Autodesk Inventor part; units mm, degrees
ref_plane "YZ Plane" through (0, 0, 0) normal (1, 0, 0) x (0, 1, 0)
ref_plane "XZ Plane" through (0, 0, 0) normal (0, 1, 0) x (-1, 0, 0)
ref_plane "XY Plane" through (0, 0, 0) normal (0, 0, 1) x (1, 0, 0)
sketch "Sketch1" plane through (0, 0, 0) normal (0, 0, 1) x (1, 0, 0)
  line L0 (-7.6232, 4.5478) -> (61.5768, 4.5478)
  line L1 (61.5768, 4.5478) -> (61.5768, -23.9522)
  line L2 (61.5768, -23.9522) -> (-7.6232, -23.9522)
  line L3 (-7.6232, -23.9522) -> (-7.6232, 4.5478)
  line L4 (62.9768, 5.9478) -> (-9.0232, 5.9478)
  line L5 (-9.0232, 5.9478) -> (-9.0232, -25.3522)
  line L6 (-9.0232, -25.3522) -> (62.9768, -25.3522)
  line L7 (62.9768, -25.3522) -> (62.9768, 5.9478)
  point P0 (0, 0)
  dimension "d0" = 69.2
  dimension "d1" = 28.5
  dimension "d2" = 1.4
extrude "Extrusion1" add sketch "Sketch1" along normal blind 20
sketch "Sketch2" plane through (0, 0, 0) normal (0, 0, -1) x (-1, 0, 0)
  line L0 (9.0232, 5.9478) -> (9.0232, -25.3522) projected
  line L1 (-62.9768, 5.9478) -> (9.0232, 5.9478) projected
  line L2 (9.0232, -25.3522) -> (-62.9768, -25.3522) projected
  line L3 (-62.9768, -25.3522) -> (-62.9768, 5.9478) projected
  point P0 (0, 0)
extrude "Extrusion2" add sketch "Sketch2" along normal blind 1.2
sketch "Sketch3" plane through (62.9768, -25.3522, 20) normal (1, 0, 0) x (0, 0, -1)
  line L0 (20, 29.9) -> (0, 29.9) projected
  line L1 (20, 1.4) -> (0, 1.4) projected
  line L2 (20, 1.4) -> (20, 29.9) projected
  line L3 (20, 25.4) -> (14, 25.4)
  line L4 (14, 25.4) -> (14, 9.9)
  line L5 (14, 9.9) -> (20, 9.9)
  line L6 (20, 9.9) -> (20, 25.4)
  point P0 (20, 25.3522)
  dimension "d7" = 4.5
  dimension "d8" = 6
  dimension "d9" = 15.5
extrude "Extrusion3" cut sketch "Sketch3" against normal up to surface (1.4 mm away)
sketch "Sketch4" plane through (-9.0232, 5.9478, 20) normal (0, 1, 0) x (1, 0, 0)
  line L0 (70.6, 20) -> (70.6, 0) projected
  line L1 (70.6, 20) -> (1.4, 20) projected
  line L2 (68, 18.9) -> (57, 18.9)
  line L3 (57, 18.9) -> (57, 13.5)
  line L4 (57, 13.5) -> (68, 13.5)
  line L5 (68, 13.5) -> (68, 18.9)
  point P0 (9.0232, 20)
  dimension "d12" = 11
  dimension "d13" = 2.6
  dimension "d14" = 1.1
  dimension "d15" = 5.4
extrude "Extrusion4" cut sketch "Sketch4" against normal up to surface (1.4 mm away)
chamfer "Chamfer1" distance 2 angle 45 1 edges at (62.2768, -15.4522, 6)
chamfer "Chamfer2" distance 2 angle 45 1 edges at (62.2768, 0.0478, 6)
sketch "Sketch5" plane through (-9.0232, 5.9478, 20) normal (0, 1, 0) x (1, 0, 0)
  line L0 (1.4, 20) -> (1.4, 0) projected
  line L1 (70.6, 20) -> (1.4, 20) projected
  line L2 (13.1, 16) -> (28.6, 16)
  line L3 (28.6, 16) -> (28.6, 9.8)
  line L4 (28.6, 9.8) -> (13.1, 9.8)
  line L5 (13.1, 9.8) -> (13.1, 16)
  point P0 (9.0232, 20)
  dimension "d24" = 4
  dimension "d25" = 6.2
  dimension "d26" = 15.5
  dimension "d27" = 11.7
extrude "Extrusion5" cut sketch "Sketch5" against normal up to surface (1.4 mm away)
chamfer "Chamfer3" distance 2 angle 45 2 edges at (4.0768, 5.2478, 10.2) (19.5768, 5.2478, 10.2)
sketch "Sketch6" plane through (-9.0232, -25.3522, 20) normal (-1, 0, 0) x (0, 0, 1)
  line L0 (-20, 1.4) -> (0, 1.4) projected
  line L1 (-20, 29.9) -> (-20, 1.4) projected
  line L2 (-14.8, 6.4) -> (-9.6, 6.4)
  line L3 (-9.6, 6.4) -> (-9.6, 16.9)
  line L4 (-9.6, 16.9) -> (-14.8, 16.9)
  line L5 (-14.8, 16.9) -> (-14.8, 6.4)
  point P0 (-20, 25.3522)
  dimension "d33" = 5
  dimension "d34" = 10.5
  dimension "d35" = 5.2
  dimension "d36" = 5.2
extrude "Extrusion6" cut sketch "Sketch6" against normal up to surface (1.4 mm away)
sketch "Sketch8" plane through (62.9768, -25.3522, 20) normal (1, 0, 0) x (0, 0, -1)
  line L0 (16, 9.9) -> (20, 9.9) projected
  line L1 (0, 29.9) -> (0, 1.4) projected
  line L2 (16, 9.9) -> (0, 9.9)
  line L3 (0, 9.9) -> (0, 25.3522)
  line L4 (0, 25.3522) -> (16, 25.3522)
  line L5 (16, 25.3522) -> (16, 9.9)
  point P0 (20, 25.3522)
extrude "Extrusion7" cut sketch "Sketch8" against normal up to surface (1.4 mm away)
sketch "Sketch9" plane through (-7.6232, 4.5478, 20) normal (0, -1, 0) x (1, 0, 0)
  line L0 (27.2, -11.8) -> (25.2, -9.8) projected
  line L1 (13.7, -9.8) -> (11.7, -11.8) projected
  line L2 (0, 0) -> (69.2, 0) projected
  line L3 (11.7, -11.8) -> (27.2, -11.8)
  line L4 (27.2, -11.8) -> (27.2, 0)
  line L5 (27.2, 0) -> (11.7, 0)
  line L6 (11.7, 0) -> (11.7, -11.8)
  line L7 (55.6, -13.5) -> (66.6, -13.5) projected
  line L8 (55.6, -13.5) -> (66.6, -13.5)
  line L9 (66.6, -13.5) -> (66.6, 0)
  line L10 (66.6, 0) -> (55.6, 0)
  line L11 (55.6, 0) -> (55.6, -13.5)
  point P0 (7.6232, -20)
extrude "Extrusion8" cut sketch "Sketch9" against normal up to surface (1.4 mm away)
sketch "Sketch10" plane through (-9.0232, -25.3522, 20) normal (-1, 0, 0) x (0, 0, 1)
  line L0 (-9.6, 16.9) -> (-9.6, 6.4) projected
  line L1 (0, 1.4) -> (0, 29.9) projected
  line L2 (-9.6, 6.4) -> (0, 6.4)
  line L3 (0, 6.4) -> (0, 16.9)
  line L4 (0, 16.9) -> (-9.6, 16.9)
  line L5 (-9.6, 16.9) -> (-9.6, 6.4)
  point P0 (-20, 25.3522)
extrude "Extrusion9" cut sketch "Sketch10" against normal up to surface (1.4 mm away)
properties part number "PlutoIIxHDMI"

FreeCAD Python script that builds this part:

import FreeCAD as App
import Part
import Sketcher
from FreeCAD import Vector


def edges_at(feature, points):
    """Names of the edges that pass closest to the given points."""
    edges = feature.Shape.Edges
    near = lambda p: min(range(len(edges)), key=lambda i: edges[i].distToShape(Part.Vertex(*p))[0])
    return sorted({f"Edge{near(p) + 1}" for p in points})


def add_polygon(sketch, points):
    """Adds a closed chain of lines whose ends are joined by coincident constraints."""
    first, n = sketch.GeometryCount, len(points)
    for a, b in zip(points, points[1:] + points[:1]):
        sketch.addGeometry(Part.LineSegment(App.Vector(*a, 0), App.Vector(*b, 0)), False)
    for i in range(n):
        sketch.addConstraint(Sketcher.Constraint("Coincident", first + i, 2, first + (i + 1) % n, 1))

doc = App.newDocument("Part")
body = doc.addObject("PartDesign::Body", "Body")

# Sketch on XY plane
sketch1 = doc.addObject("Sketcher::SketchObject", "Sketch")
body.addObject(sketch1)
sketch1.AttachmentSupport = (doc.XY_Plane, [""])
sketch1.MapMode = "FlatFace"
add_polygon(sketch1, [(62.9768, -25.3522), (62.9768, 5.9478), (-9.0232, 5.9478), (-9.0232, -25.3522)])  # lines 0-3
add_polygon(sketch1, [(-7.6232, -23.9522), (-7.6232, 4.5478), (61.5768, 4.5478), (61.5768, -23.9522)])  # lines 4-7
sketch1.addConstraint([
    Sketcher.Constraint("Vertical", 0),
    Sketcher.Constraint("Horizontal", 1),
    Sketcher.Constraint("Vertical", 2),
    Sketcher.Constraint("Horizontal", 3),
    Sketcher.Constraint("Vertical", 4),
    Sketcher.Constraint("Horizontal", 5),
    Sketcher.Constraint("Vertical", 6),
    Sketcher.Constraint("Horizontal", 7),
    Sketcher.Constraint("DistanceX", 5, 1, 5, 2, 69.2),
    Sketcher.Constraint("DistanceY", 4, 1, 4, 2, 28.5),
    Sketcher.Constraint("DistanceX", 1, 2, 4, 2, 1.4),
    Sketcher.Constraint("DistanceY", 4, 2, 1, 2, 1.4),
    Sketcher.Constraint("DistanceX", 5, 2, 0, 2, 1.4),
    Sketcher.Constraint("DistanceY", 3, 2, 6, 2, 1.4),
    Sketcher.Constraint("DistanceX", -1, 1, 0, 2, 62.9768),
    Sketcher.Constraint("DistanceY", -1, 1, 0, 2, 5.9478),
])
pad1 = doc.addObject("PartDesign::Pad", "Pad")
body.addObject(pad1)
pad1.Profile = sketch1
pad1.Length = 20

# Sketch on XY plane
sketch2 = doc.addObject("Sketcher::SketchObject", "Sketch001")
body.addObject(sketch2)
sketch2.AttachmentSupport = (doc.XY_Plane, [""])
sketch2.MapMode = "FlatFace"
add_polygon(sketch2, [(-9.0232, -25.3522), (-9.0232, 5.9478), (62.9768, 5.9478), (62.9768, -25.3522)])  # lines 0-3
sketch2.addConstraint([
    Sketcher.Constraint("Vertical", 0),
    Sketcher.Constraint("Horizontal", 1),
    Sketcher.Constraint("Vertical", 2),
    Sketcher.Constraint("Horizontal", 3),
    Sketcher.Constraint("DistanceX", 1, 1, 1, 2, 72.0),
    Sketcher.Constraint("DistanceY", 0, 1, 0, 2, 31.3),
    Sketcher.Constraint("DistanceX", 0, 2, -1, 1, 9.0232),
    Sketcher.Constraint("DistanceY", -1, 1, 0, 2, 5.9478),
])
pad2 = doc.addObject("PartDesign::Pad", "Pad001")
body.addObject(pad2)
pad2.Profile = sketch2
pad2.Length = 1.2
pad2.Reversed = True

# Sketch on YZ plane
sketch3 = doc.addObject("Sketcher::SketchObject", "Sketch002")
body.addObject(sketch3)
sketch3.AttachmentSupport = (doc.YZ_Plane, [""])
sketch3.MapMode = "FlatFace"
sketch3.AttachmentOffset = App.Placement(Vector(0, 0, 62.9768), App.Rotation())
add_polygon(sketch3, [(-15.4522, 6), (-15.4522, 0), (0.0478, 0), (0.0478, 6)])  # lines 0-3
sketch3.addConstraint([
    Sketcher.Constraint("Vertical", 0),
    Sketcher.Constraint("Horizontal", 1),
    Sketcher.Constraint("Vertical", 2),
    Sketcher.Constraint("Horizontal", 3),
    Sketcher.Constraint("PointOnObject", 0, 2, -1),
    Sketcher.Constraint("DistanceY", 0, 2, 0, 1, 6.0),
    Sketcher.Constraint("DistanceX", 1, 1, 1, 2, 15.5),
    Sketcher.Constraint("DistanceX", 0, 2, -1, 1, 15.4522),
])
pocket1 = doc.addObject("PartDesign::Pocket", "Pocket")
body.addObject(pocket1)
pocket1.Profile = sketch3
pocket1.Length = 1.4

# Sketch on XZ plane
sketch4 = doc.addObject("Sketcher::SketchObject", "Sketch003")
body.addObject(sketch4)
sketch4.AttachmentSupport = (doc.XZ_Plane, [""])
sketch4.MapMode = "FlatFace"
sketch4.AttachmentOffset = App.Placement(Vector(0, 0, -5.9478), App.Rotation())
add_polygon(sketch4, [(58.9768, 6.5), (58.9768, 1.1), (47.9768, 1.1), (47.9768, 6.5)])  # lines 0-3
sketch4.addConstraint([
    Sketcher.Constraint("Vertical", 0),
    Sketcher.Constraint("Horizontal", 1),
    Sketcher.Constraint("Vertical", 2),
    Sketcher.Constraint("Horizontal", 3),
    Sketcher.Constraint("DistanceX", 1, 2, 1, 1, 11.0),
    Sketcher.Constraint("DistanceY", 0, 2, 0, 1, 5.4),
    Sketcher.Constraint("DistanceY", -1, 1, 0, 2, 1.1),
    Sketcher.Constraint("DistanceX", -1, 1, 0, 2, 58.9768),
])
pocket2 = doc.addObject("PartDesign::Pocket", "Pocket001")
body.addObject(pocket2)
pocket2.Profile = sketch4
pocket2.Length = 1.4
pocket2.Reversed = True
doc.recompute()

chamfer = doc.addObject("PartDesign::Chamfer", "Chamfer")
body.addObject(chamfer)
chamfer.Base = (pocket2, edges_at(pocket2, [(62.277, -15.452, 6)]))
chamfer.Size = 2
doc.recompute()

chamfer2 = doc.addObject("PartDesign::Chamfer", "Chamfer001")
body.addObject(chamfer2)
chamfer2.Base = (chamfer, edges_at(chamfer, [(62.277, 0.048, 6)]))
chamfer2.Size = 2

# Sketch on XZ plane
sketch5 = doc.addObject("Sketcher::SketchObject", "Sketch004")
body.addObject(sketch5)
sketch5.AttachmentSupport = (doc.XZ_Plane, [""])
sketch5.MapMode = "FlatFace"
sketch5.AttachmentOffset = App.Placement(Vector(0, 0, -5.9478), App.Rotation())
add_polygon(sketch5, [(19.5768, 4), (4.0768, 4), (4.0768, 10.2), (19.5768, 10.2)])  # lines 0-3
sketch5.addConstraint([
    Sketcher.Constraint("Horizontal", 0),
    Sketcher.Constraint("Vertical", 1),
    Sketcher.Constraint("Horizontal", 2),
    Sketcher.Constraint("Vertical", 3),
    Sketcher.Constraint("DistanceX", 0, 2, 0, 1, 15.5),
    Sketcher.Constraint("DistanceY", 1, 1, 1, 2, 6.2),
    Sketcher.Constraint("DistanceY", -1, 1, 0, 2, 4.0),
    Sketcher.Constraint("DistanceX", -1, 1, 0, 2, 4.0768),
])
pocket3 = doc.addObject("PartDesign::Pocket", "Pocket002")
body.addObject(pocket3)
pocket3.Profile = sketch5
pocket3.Length = 1.4
pocket3.Reversed = True
doc.recompute()

chamfer3 = doc.addObject("PartDesign::Chamfer", "Chamfer002")
body.addObject(chamfer3)
chamfer3.Base = (pocket3, edges_at(pocket3, [(4.077, 5.248, 10.2), (19.577, 5.248, 10.2)]))
chamfer3.Size = 2

# Sketch on YZ plane
sketch6 = doc.addObject("Sketcher::SketchObject", "Sketch005")
body.addObject(sketch6)
sketch6.AttachmentSupport = (doc.YZ_Plane, [""])
sketch6.MapMode = "FlatFace"
sketch6.AttachmentOffset = App.Placement(Vector(0, 0, -9.0232), App.Rotation())
add_polygon(sketch6, [(-8.4522, 5.2), (-18.9522, 5.2), (-18.9522, 10.4), (-8.4522, 10.4)])  # lines 0-3
sketch6.addConstraint([
    Sketcher.Constraint("Horizontal", 0),
    Sketcher.Constraint("Vertical", 1),
    Sketcher.Constraint("Horizontal", 2),
    Sketcher.Constraint("Vertical", 3),
    Sketcher.Constraint("DistanceX", 0, 2, 0, 1, 10.5),
    Sketcher.Constraint("DistanceY", 1, 1, 1, 2, 5.2),
    Sketcher.Constraint("DistanceY", -1, 1, 0, 2, 5.2),
    Sketcher.Constraint("DistanceX", 0, 2, -1, 1, 18.9522),
])
pocket4 = doc.addObject("PartDesign::Pocket", "Pocket003")
body.addObject(pocket4)
pocket4.Profile = sketch6
pocket4.Length = 1.4
pocket4.Reversed = True

# Sketch on YZ plane
sketch7 = doc.addObject("Sketcher::SketchObject", "Sketch006")
body.addObject(sketch7)
sketch7.AttachmentSupport = (doc.YZ_Plane, [""])
sketch7.MapMode = "FlatFace"
sketch7.AttachmentOffset = App.Placement(Vector(0, 0, 62.9768), App.Rotation())
add_polygon(sketch7, [(0, 4), (0, 20), (-15.4522, 20), (-15.4522, 4)])  # lines 0-3
sketch7.addConstraint([
    Sketcher.Constraint("Vertical", 0),
    Sketcher.Constraint("Horizontal", 1),
    Sketcher.Constraint("Vertical", 2),
    Sketcher.Constraint("Horizontal", 3),
    Sketcher.Constraint("PointOnObject", 0, 2, -2),
    Sketcher.Constraint("DistanceY", 0, 1, 0, 2, 16.0),
    Sketcher.Constraint("DistanceY", -1, 1, 0, 2, 20.0),
    Sketcher.Constraint("DistanceX", 1, 2, 1, 1, 15.4522),
])
pocket5 = doc.addObject("PartDesign::Pocket", "Pocket004")
body.addObject(pocket5)
pocket5.Profile = sketch7
pocket5.Length = 1.4

# Sketch on XZ plane
sketch8 = doc.addObject("Sketcher::SketchObject", "Sketch007")
body.addObject(sketch8)
sketch8.AttachmentSupport = (doc.XZ_Plane, [""])
sketch8.MapMode = "FlatFace"
sketch8.AttachmentOffset = App.Placement(Vector(0, 0, -4.5478), App.Rotation())
add_polygon(sketch8, [(58.9768, 20), (47.9768, 20), (47.9768, 6.5), (58.9768, 6.5)])  # lines 0-3
add_polygon(sketch8, [(19.5768, 20), (4.0768, 20), (4.0768, 8.2), (19.5768, 8.2)])  # lines 4-7
sketch8.addConstraint([
    Sketcher.Constraint("Horizontal", 0),
    Sketcher.Constraint("Vertical", 1),
    Sketcher.Constraint("Horizontal", 2),
    Sketcher.Constraint("Vertical", 3),
    Sketcher.Constraint("Horizontal", 4),
    Sketcher.Constraint("Vertical", 5),
    Sketcher.Constraint("Horizontal", 6),
    Sketcher.Constraint("Vertical", 7),
    Sketcher.Constraint("Horizontal", 3, 2, 4, 2),
    Sketcher.Constraint("DistanceX", 0, 2, 0, 1, 11.0),
    Sketcher.Constraint("DistanceX", 4, 2, 4, 1, 15.5),
    Sketcher.Constraint("DistanceY", 1, 2, 1, 1, 13.5),
    Sketcher.Constraint("DistanceY", 5, 2, 5, 1, 11.8),
    Sketcher.Constraint("DistanceY", -1, 1, 0, 2, 20.0),
    Sketcher.Constraint("DistanceX", 4, 2, 0, 2, 43.9),
    Sketcher.Constraint("DistanceX", -1, 1, 0, 2, 47.9768),
])
pocket6 = doc.addObject("PartDesign::Pocket", "Pocket005")
body.addObject(pocket6)
pocket6.Profile = sketch8
pocket6.Length = 1.4

# Sketch on YZ plane
sketch9 = doc.addObject("Sketcher::SketchObject", "Sketch008")
body.addObject(sketch9)
sketch9.AttachmentSupport = (doc.YZ_Plane, [""])
sketch9.MapMode = "FlatFace"
sketch9.AttachmentOffset = App.Placement(Vector(0, 0, -9.0232), App.Rotation())
add_polygon(sketch9, [(-8.4522, 20), (-8.4522, 10.4), (-18.9522, 10.4), (-18.9522, 20)])  # lines 0-3
sketch9.addConstraint([
    Sketcher.Constraint("Vertical", 0),
    Sketcher.Constraint("Horizontal", 1),
    Sketcher.Constraint("Vertical", 2),
    Sketcher.Constraint("Horizontal", 3),
    Sketcher.Constraint("DistanceX", 1, 2, 1, 1, 10.5),
    Sketcher.Constraint("DistanceY", 0, 2, 0, 1, 9.6),
    Sketcher.Constraint("DistanceY", -1, 1, 2, 2, 20.0),
    Sketcher.Constraint("DistanceX", 0, 2, -1, 1, 8.4522),
])
pocket7 = doc.addObject("PartDesign::Pocket", "Pocket006")
body.addObject(pocket7)
pocket7.Profile = sketch9
pocket7.Length = 1.4
pocket7.Reversed = True

doc.recompute()
